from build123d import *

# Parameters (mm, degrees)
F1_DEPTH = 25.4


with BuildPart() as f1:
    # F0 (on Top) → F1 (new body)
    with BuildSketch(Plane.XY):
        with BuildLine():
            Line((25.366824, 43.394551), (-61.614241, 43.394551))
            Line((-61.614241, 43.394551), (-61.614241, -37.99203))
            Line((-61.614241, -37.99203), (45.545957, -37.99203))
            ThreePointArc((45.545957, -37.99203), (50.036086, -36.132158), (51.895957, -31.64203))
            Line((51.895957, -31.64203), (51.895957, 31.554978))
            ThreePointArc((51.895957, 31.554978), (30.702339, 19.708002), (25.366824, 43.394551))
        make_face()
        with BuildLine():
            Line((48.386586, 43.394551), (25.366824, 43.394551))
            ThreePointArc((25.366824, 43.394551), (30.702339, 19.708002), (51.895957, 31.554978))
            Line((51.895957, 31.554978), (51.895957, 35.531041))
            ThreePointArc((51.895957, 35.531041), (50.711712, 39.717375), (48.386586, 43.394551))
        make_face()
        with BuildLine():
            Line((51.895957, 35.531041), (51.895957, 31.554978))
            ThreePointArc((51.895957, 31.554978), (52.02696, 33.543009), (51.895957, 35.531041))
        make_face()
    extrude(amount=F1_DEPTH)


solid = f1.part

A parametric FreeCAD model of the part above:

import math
import FreeCAD as App
import Part
import Sketcher

V = App.Vector
Q = App.Units.Quantity

doc = App.newDocument("Part")
body = doc.addObject("PartDesign::Body", "Body")

# Sketch on XY plane
sketch1 = body.newObject("Sketcher::SketchObject", "Sketch")
sketch1.AttachmentSupport = (doc.getObject("XY_Plane"), [""])
sketch1.MapMode = "FlatFace"
sketch1.addGeometry([
    Part.LineSegment(V(-61.614241, 43.394551, 0), V(-61.614241, -37.99203, 0)),  # 0
    Part.LineSegment(V(-61.614241, -37.99203, 0), V(45.545957, -37.99203, 0)),  # 1
    Part.ArcOfCircle(Part.Circle(V(45.545958, -31.642032, 0), V(0, 0, 1), 6.349998), math.radians(-90.000014), math.radians(0.000014)),  # 2
    Part.LineSegment(V(51.895957, -31.64203, 0), V(51.895957, 31.554978, 0)),  # 3
    Part.ArcOfCircle(Part.Circle(V(36.876807, 33.543009, 0), V(0, 0, 1), 15.150153), math.radians(-7.540205), math.radians(7.540205)),  # 4
    Part.ArcOfCircle(Part.Circle(V(36.876699, 33.543009, 0), V(0, 0, 1), 15.15026), math.radians(7.540155), math.radians(40.560879)),  # 5
    Part.LineSegment(V(48.386586, 43.394551, 0), V(-61.614241, 43.394551, 0)),  # 6
], False)
sketch1.addConstraint([
    Sketcher.Constraint("Coincident", 0, 2, 1, 1),
    Sketcher.Constraint("Coincident", 1, 2, 2, 1),
    Sketcher.Constraint("Coincident", 2, 2, 3, 1),
    Sketcher.Constraint("Coincident", 3, 2, 4, 1),
    Sketcher.Constraint("Coincident", 4, 2, 5, 1),
    Sketcher.Constraint("Coincident", 5, 2, 6, 1),
    Sketcher.Constraint("Coincident", 6, 2, 0, 1),
    Sketcher.Constraint("Vertical", 0),
    Sketcher.Constraint("Horizontal", 1),
    Sketcher.Constraint("Vertical", 3),
    Sketcher.Constraint("Horizontal", 6),
    Sketcher.Constraint("Radius", 2, Q("0.2499999 in")),
    Sketcher.Constraint("DistanceX", 1, 2, 2, 2, Q("0.25 in")),
    Sketcher.Constraint("DistanceY", 1, 2, 2, 2, Q("0.25 in")),
    Sketcher.Constraint("DistanceX", 2, 3, 4, 2, Q("0.2499999 in")),
    Sketcher.Constraint("Radius", 5, Q("15.15026 mm")),
    Sketcher.Constraint("DistanceX", 1, 1, 1, 2, Q("107.160198 mm")),
    Sketcher.Constraint("Radius", 4, Q("15.150153 mm")),
    Sketcher.Constraint("DistanceY", 0, 2, 0, 1, Q("81.386581 mm")),
    Sketcher.Constraint("DistanceX", -1, 1, 5, 3, Q("36.876699 mm")),
    Sketcher.Constraint("DistanceX", 6, 2, 6, 1, Q("110.000827 mm")),
    Sketcher.Constraint("DistanceY", 3, 1, 3, 2, Q("63.197008 mm")),
    Sketcher.Constraint("DistanceX", -1, 1, 2, 3, Q("45.545958 mm")),
    Sketcher.Constraint("DistanceY", 2, 3, -1, 1, Q("31.642032 mm")),
])
pad1 = body.newObject("PartDesign::Pad", "Pad")
pad1.Profile = sketch1
pad1.Length = Q("1 in")

doc.recompute()
